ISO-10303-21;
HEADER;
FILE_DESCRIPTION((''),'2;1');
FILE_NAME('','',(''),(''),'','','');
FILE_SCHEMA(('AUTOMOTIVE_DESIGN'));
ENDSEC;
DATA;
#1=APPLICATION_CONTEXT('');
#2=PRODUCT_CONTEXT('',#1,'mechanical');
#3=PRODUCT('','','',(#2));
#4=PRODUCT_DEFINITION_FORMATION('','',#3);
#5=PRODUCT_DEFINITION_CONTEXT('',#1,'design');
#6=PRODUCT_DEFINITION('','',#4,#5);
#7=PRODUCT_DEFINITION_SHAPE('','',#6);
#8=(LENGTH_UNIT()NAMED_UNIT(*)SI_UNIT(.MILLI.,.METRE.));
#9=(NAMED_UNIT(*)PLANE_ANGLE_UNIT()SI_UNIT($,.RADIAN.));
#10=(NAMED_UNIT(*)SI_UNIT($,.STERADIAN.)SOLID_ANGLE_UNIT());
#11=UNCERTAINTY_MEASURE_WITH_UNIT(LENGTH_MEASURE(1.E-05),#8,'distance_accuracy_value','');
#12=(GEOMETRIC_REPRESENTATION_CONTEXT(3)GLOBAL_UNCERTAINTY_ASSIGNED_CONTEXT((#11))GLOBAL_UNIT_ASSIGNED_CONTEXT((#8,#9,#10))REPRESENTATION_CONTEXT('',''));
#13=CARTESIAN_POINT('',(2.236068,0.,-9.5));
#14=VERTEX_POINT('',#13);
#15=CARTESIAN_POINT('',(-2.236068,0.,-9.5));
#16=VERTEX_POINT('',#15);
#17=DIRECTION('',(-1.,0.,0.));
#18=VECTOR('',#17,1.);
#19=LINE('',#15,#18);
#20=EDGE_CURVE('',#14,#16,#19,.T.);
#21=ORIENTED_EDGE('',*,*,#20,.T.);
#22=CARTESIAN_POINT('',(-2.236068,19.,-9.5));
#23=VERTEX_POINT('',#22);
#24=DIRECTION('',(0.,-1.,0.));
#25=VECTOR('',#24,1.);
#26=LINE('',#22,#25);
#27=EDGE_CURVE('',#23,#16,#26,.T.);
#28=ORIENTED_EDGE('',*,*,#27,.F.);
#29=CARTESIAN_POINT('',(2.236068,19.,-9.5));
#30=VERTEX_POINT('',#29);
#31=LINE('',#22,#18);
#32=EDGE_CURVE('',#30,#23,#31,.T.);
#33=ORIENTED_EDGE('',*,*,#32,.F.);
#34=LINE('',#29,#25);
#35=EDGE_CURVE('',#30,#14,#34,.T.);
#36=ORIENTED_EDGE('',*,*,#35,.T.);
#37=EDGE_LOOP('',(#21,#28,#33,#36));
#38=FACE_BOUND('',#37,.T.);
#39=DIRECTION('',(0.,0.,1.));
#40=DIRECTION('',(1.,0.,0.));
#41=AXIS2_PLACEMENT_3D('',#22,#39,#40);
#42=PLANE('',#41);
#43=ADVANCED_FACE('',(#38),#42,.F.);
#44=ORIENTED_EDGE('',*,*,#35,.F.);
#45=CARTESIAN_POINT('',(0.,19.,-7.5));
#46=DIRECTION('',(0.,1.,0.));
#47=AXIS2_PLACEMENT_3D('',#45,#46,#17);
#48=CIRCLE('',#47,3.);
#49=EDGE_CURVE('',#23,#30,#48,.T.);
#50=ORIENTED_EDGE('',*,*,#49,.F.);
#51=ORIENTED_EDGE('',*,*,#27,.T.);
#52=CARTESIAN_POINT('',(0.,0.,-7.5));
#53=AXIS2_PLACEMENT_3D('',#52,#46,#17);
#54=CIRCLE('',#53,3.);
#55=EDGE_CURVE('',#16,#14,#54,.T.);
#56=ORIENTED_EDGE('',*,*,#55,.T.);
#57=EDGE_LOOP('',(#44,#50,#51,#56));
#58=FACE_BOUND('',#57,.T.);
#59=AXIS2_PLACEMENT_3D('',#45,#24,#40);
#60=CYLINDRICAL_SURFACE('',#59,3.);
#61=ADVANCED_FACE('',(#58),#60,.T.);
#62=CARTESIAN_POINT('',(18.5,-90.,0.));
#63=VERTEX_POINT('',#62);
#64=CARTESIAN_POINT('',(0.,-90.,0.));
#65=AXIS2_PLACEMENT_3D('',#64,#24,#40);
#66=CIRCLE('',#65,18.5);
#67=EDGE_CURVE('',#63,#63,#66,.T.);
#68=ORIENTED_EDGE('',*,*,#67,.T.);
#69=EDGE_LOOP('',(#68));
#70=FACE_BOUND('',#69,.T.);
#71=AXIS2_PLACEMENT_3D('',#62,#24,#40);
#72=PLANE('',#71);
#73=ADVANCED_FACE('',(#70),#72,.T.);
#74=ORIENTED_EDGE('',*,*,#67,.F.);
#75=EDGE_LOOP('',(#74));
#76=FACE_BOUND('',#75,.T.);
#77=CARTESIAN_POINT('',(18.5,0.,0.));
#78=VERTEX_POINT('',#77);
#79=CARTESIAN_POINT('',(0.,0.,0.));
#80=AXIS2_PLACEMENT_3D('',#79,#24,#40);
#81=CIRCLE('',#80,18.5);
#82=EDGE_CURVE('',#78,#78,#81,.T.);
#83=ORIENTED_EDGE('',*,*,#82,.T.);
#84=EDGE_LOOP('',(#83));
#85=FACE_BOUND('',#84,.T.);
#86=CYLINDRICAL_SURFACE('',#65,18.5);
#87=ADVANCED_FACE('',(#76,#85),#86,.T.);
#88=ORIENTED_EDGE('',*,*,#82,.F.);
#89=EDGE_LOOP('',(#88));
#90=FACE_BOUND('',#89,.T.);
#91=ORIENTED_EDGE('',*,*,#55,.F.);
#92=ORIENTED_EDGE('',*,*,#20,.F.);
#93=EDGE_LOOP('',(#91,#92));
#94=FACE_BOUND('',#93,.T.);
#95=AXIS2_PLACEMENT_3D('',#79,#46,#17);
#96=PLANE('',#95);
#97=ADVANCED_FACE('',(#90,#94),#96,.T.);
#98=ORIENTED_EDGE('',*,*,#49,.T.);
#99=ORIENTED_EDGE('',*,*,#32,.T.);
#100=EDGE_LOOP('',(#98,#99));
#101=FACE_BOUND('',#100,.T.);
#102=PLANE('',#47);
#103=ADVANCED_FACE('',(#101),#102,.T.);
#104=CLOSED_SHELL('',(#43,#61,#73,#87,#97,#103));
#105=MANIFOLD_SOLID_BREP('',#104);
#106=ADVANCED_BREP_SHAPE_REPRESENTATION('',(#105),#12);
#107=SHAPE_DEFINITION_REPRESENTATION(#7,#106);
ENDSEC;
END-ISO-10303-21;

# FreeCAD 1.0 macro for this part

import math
import FreeCAD as App
import Part
import Sketcher
from FreeCAD import Vector
Q = App.Units.Quantity

doc = App.newDocument("Part")
params = doc.addObject("Spreadsheet::Sheet", "Params")
for row, (alias, value) in enumerate([
    ("sketch1_height", "90 mm"),
    ("sketch1_width", "18.5 mm"),
    ("revolution_angle", "360 deg"),
    ("sketch2_radius", "3 mm"),
    ("pad1_length", "19 mm"),
], start=1):
    params.set(f"A{row}", alias)
    params.set(f"B{row}", "=" + value)
    params.setAlias(f"B{row}", alias)

body = doc.addObject("PartDesign::Body", "Body")

sketch1 = body.newObject("Sketcher::SketchObject", "Sketch")
sketch1.AttachmentSupport = (doc.getObject("XY_Plane"), [""])
sketch1.MapMode = "FlatFace"
sketch1.addGeometry(Part.LineSegment(Vector(0, 0, 0), Vector(0, -90, 0)), False)
sketch1.addGeometry(Part.LineSegment(Vector(0, -90, 0), Vector(18.5, -90, 0)), False)
sketch1.addGeometry(Part.LineSegment(Vector(18.5, -90, 0), Vector(18.5, 0, 0)), False)
sketch1.addGeometry(Part.LineSegment(Vector(18.5, 0, 0), Vector(0, 0, 0)), False)
sketch1.addConstraint(Sketcher.Constraint("Coincident", 0, 2, 1, 1))
sketch1.addConstraint(Sketcher.Constraint("Coincident", 1, 2, 2, 1))
sketch1.addConstraint(Sketcher.Constraint("Coincident", 2, 2, 3, 1))
sketch1.addConstraint(Sketcher.Constraint("Coincident", 3, 2, 0, 1))
sketch1.addConstraint(Sketcher.Constraint("Vertical", 0))
sketch1.addConstraint(Sketcher.Constraint("Horizontal", 1))
sketch1.addConstraint(Sketcher.Constraint("Vertical", 2))
sketch1.addConstraint(Sketcher.Constraint("Horizontal", 3))
sketch1.addConstraint(Sketcher.Constraint("Coincident", 3, 2, -1, 1))
sketch1.addConstraint(Sketcher.Constraint("DistanceY", 0, 2, 0, 1, Q("90 mm")))
sketch1.addConstraint(Sketcher.Constraint("DistanceX", 1, 1, 1, 2, Q("18.5 mm")))
sketch1.setExpression("Constraints[9]", "Params.sketch1_height")
sketch1.setExpression("Constraints[10]", "Params.sketch1_width")
revolution = body.newObject("PartDesign::Revolution", "Revolution")
revolution.Profile = sketch1
revolution.ReferenceAxis = (sketch1, ["V_Axis"])
revolution.setExpression("Angle", "Params.revolution_angle")

sketch2 = body.newObject("Sketcher::SketchObject", "Sketch001")
sketch2.AttachmentSupport = (doc.getObject("XZ_Plane"), [""])
sketch2.MapMode = "FlatFace"
sketch2.addGeometry(Part.LineSegment(Vector(2.236068, -9.5, 0), Vector(-2.236068, -9.5, 0)), False)
sketch2.addGeometry(Part.ArcOfCircle(Part.Circle(Vector(0, -7.5, 0), Vector(0, 0, 1), 3), math.radians(-41.810315), math.radians(221.810315)), False)
sketch2.addConstraint(Sketcher.Constraint("Coincident", 0, 1, 1, 1))
sketch2.addConstraint(Sketcher.Constraint("Coincident", 1, 2, 0, 2))
sketch2.addConstraint(Sketcher.Constraint("Horizontal", 0))
sketch2.addConstraint(Sketcher.Constraint("PointOnObject", 1, 3, -2))
sketch2.addConstraint(Sketcher.Constraint("Radius", 1, Q("3 mm")))
sketch2.addConstraint(Sketcher.Constraint("DistanceY", 0, 1, 1, 3, Q("2 mm")))
sketch2.addConstraint(Sketcher.Constraint("DistanceY", 1, 3, -1, 1, Q("7.5 mm")))
sketch2.setExpression("Constraints[4]", "Params.sketch2_radius")
pad1 = body.newObject("PartDesign::Pad", "Pad")
pad1.Profile = sketch2
pad1.setExpression("Length", "Params.pad1_length")
pad1.Reversed = True

doc.recompute()
